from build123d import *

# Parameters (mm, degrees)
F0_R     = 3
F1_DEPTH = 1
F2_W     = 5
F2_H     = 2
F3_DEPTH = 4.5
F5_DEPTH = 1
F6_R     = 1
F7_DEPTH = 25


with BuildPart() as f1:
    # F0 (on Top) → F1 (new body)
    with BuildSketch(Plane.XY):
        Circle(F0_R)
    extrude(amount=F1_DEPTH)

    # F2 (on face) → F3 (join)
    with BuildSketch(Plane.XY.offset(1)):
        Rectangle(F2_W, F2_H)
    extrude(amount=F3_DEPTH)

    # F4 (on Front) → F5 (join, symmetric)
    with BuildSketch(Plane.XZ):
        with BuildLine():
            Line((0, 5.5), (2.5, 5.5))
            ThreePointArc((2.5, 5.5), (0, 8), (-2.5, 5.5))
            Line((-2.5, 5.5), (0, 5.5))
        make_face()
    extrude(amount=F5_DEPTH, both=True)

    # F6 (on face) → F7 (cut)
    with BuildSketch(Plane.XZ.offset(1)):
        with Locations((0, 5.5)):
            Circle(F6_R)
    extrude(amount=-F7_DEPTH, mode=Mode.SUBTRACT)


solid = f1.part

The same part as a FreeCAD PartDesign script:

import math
import FreeCAD as App
import Part
import Sketcher

V = App.Vector

doc = App.newDocument("Part")
body = doc.addObject("PartDesign::Body", "Body")

# Sketch on XY plane
sketch1 = body.newObject("Sketcher::SketchObject", "Sketch")
sketch1.AttachmentSupport = (doc.getObject("XY_Plane"), [""])
sketch1.MapMode = "FlatFace"
sketch1.addGeometry(Part.Circle(V(0, 0, 0), V(0, 0, 1), 3), False)
sketch1.addConstraint([
    Sketcher.Constraint("Coincident", 0, 3, -1, 1),
    Sketcher.Constraint("Diameter", 0, 6.0),
])
pad1 = body.newObject("PartDesign::Pad", "Pad")
pad1.Profile = sketch1
pad1.Length = 1

# Sketch on XY plane
sketch2 = body.newObject("Sketcher::SketchObject", "Sketch001")
sketch2.AttachmentSupport = (doc.getObject("XY_Plane"), [""])
sketch2.MapMode = "FlatFace"
sketch2.AttachmentOffset = App.Placement(V(0, 0, 1), App.Rotation())
sketch2.addGeometry([
    Part.LineSegment(V(-2.5, 1, 0), V(-2.5, -1, 0)),
    Part.LineSegment(V(-2.5, -1, 0), V(2.5, -1, 0)),
    Part.LineSegment(V(2.5, -1, 0), V(2.5, 1, 0)),
    Part.LineSegment(V(2.5, 1, 0), V(-2.5, 1, 0)),
], False)
sketch2.addConstraint([
    Sketcher.Constraint("Coincident", 0, 2, 1, 1),
    Sketcher.Constraint("Coincident", 1, 2, 2, 1),
    Sketcher.Constraint("Coincident", 2, 2, 3, 1),
    Sketcher.Constraint("Coincident", 3, 2, 0, 1),
    Sketcher.Constraint("Vertical", 0),
    Sketcher.Constraint("Horizontal", 1),
    Sketcher.Constraint("Vertical", 2),
    Sketcher.Constraint("Horizontal", 3),
    Sketcher.Constraint("Symmetric", 0, 2, 2, 2, -1, 1),
    Sketcher.Constraint("DistanceX", 1, 1, 1, 2, 5.0),
    Sketcher.Constraint("DistanceY", 0, 2, 0, 1, 2.0),
])
pad2 = body.newObject("PartDesign::Pad", "Pad001")
pad2.Profile = sketch2
pad2.Length = 4.5

# Sketch on XZ plane
sketch3 = body.newObject("Sketcher::SketchObject", "Sketch002")
sketch3.AttachmentSupport = (doc.getObject("XZ_Plane"), [""])
sketch3.MapMode = "FlatFace"
sketch3.addGeometry([
    Part.ArcOfCircle(Part.Circle(V(0, 5.5, 0), V(0, 0, 1), 2.5), math.radians(0), math.radians(180)),
    Part.LineSegment(V(-2.5, 5.5, 0), V(2.5, 5.5, 0)),
], False)
sketch3.addConstraint([
    Sketcher.Constraint("Coincident", 0, 1, 1, 2),
    Sketcher.Constraint("Coincident", 1, 1, 0, 2),
    Sketcher.Constraint("Horizontal", 1),
    Sketcher.Constraint("PointOnObject", 0, 3, -2),
    Sketcher.Constraint("Radius", 0, 2.5),
    Sketcher.Constraint("DistanceY", -1, 1, 0, 3, 5.5),
    Sketcher.Constraint("DistanceY", -1, 1, 0, 1, 5.5),
])
pad3 = body.newObject("PartDesign::Pad", "Pad002")
pad3.Profile = sketch3
pad3.Length = 2
pad3.Midplane = True

# Sketch on XZ plane
sketch4 = body.newObject("Sketcher::SketchObject", "Sketch003")
sketch4.AttachmentSupport = (doc.getObject("XZ_Plane"), [""])
sketch4.MapMode = "FlatFace"
sketch4.AttachmentOffset = App.Placement(V(0, 0, 1), App.Rotation())
sketch4.addGeometry(Part.Circle(V(0, 5.5, 0), V(0, 0, 1), 1), False)
sketch4.addConstraint([
    Sketcher.Constraint("PointOnObject", 0, 3, -2),
    Sketcher.Constraint("Diameter", 0, 2.0),
    Sketcher.Constraint("DistanceY", -1, 1, 0, 3, 5.5),
])
pocket1 = body.newObject("PartDesign::Pocket", "Pocket")
pocket1.Profile = sketch4
pocket1.Length = 25

doc.recompute()
